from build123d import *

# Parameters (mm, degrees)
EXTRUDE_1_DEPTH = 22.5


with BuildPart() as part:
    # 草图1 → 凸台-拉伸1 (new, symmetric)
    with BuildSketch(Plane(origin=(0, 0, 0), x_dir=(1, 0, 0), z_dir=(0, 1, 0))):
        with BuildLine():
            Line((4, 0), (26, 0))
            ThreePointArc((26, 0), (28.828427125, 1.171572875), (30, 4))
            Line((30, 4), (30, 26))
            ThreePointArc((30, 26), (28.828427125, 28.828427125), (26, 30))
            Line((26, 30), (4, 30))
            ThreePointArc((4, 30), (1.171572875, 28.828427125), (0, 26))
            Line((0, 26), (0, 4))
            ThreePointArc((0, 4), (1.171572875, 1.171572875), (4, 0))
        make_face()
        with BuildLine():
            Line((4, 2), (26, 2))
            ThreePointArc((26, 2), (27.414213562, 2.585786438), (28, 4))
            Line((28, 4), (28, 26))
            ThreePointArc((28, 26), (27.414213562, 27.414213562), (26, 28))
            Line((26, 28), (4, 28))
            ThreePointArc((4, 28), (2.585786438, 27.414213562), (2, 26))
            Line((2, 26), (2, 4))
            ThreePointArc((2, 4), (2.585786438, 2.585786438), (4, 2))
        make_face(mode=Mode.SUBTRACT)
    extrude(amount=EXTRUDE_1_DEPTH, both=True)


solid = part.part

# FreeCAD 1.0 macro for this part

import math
import FreeCAD as App
import Part
import Sketcher

V = App.Vector
Q = App.Units.Quantity

doc = App.newDocument("Part")
body = doc.addObject("PartDesign::Body", "Body")

sketch1 = doc.addObject("Sketcher::SketchObject", "Sketch")
body.addObject(sketch1)
sketch1.AttachmentSupport = (doc.XZ_Plane, [""])
sketch1.MapMode = "FlatFace"
sketch1.addGeometry([
    Part.LineSegment(V(4, 0, 0), V(26, 0, 0)),
    Part.ArcOfCircle(Part.Circle(V(26, -4, 0), V(0, 0, 1), 4), math.radians(0), math.radians(90)),
    Part.LineSegment(V(30, -4, 0), V(30, -26, 0)),
    Part.ArcOfCircle(Part.Circle(V(26, -26, 0), V(0, 0, 1), 4), math.radians(-90), math.radians(0)),
    Part.LineSegment(V(26, -30, 0), V(4, -30, 0)),
    Part.ArcOfCircle(Part.Circle(V(4, -26, 0), V(0, 0, 1), 4), math.radians(180), math.radians(270)),
    Part.LineSegment(V(0, -26, 0), V(0, -4, 0)),
    Part.ArcOfCircle(Part.Circle(V(4, -4, 0), V(0, 0, 1), 4), math.radians(90), math.radians(180)),
    Part.LineSegment(V(26, -2, 0), V(4, -2, 0)),
    Part.ArcOfCircle(Part.Circle(V(4, -4, 0), V(0, 0, 1), 2), math.radians(90), math.radians(180)),
    Part.LineSegment(V(2, -4, 0), V(2, -26, 0)),
    Part.ArcOfCircle(Part.Circle(V(4, -26, 0), V(0, 0, 1), 2), math.radians(-180), math.radians(-90)),
    Part.LineSegment(V(4, -28, 0), V(26, -28, 0)),
    Part.ArcOfCircle(Part.Circle(V(26, -26, 0), V(0, 0, 1), 2), math.radians(-90), math.radians(0)),
    Part.LineSegment(V(28, -26, 0), V(28, -4, 0)),
    Part.ArcOfCircle(Part.Circle(V(26, -4, 0), V(0, 0, 1), 2), math.radians(0), math.radians(90)),
], False)
sketch1.addConstraint([
    Sketcher.Constraint("Tangent", 0, 2, 1, 2),
    Sketcher.Constraint("Tangent", 1, 1, 2, 1),
    Sketcher.Constraint("Tangent", 2, 2, 3, 2),
    Sketcher.Constraint("Tangent", 3, 1, 4, 1),
    Sketcher.Constraint("Tangent", 4, 2, 5, 2),
    Sketcher.Constraint("Tangent", 5, 1, 6, 1),
    Sketcher.Constraint("Tangent", 6, 2, 7, 2),
    Sketcher.Constraint("Tangent", 7, 1, 0, 1),
    Sketcher.Constraint("Tangent", 8, 2, 9, 1),
    Sketcher.Constraint("Tangent", 9, 2, 10, 1),
    Sketcher.Constraint("Tangent", 10, 2, 11, 1),
    Sketcher.Constraint("Tangent", 11, 2, 12, 1),
    Sketcher.Constraint("Tangent", 12, 2, 13, 1),
    Sketcher.Constraint("Tangent", 13, 2, 14, 1),
    Sketcher.Constraint("Tangent", 14, 2, 15, 1),
    Sketcher.Constraint("Tangent", 15, 2, 8, 1),
    Sketcher.Constraint("Horizontal", 0),
    Sketcher.Constraint("Vertical", 2),
    Sketcher.Constraint("Horizontal", 4),
    Sketcher.Constraint("Vertical", 6),
    Sketcher.Constraint("Horizontal", 8),
    Sketcher.Constraint("Vertical", 10),
    Sketcher.Constraint("Horizontal", 12),
    Sketcher.Constraint("Vertical", 14),
    Sketcher.Constraint("Coincident", 9, 3, 7, 3),
    Sketcher.Constraint("Coincident", 11, 3, 5, 3),
    Sketcher.Constraint("Coincident", 13, 3, 3, 3),
    Sketcher.Constraint("Equal", 1, 3),
    Sketcher.Constraint("Equal", 3, 5),
    Sketcher.Constraint("Equal", 5, 7),
    Sketcher.Constraint("Equal", 13, 15),
    Sketcher.Constraint("PointOnObject", 0, 2, -1),
    Sketcher.Constraint("PointOnObject", 5, 1, -2),
    Sketcher.Constraint("Equal", 12, 2),
    Sketcher.Constraint("Radius", 1, Q("4 mm")),
    Sketcher.Constraint("Radius", 9, Q("2 mm")),
    Sketcher.Constraint("DistanceX", 0, 1, 0, 2, Q("22 mm")),
])
pad1 = doc.addObject("PartDesign::Pad", "Pad")
body.addObject(pad1)
pad1.Profile = sketch1
pad1.Length = 45
pad1.Midplane = True

doc.recompute()
